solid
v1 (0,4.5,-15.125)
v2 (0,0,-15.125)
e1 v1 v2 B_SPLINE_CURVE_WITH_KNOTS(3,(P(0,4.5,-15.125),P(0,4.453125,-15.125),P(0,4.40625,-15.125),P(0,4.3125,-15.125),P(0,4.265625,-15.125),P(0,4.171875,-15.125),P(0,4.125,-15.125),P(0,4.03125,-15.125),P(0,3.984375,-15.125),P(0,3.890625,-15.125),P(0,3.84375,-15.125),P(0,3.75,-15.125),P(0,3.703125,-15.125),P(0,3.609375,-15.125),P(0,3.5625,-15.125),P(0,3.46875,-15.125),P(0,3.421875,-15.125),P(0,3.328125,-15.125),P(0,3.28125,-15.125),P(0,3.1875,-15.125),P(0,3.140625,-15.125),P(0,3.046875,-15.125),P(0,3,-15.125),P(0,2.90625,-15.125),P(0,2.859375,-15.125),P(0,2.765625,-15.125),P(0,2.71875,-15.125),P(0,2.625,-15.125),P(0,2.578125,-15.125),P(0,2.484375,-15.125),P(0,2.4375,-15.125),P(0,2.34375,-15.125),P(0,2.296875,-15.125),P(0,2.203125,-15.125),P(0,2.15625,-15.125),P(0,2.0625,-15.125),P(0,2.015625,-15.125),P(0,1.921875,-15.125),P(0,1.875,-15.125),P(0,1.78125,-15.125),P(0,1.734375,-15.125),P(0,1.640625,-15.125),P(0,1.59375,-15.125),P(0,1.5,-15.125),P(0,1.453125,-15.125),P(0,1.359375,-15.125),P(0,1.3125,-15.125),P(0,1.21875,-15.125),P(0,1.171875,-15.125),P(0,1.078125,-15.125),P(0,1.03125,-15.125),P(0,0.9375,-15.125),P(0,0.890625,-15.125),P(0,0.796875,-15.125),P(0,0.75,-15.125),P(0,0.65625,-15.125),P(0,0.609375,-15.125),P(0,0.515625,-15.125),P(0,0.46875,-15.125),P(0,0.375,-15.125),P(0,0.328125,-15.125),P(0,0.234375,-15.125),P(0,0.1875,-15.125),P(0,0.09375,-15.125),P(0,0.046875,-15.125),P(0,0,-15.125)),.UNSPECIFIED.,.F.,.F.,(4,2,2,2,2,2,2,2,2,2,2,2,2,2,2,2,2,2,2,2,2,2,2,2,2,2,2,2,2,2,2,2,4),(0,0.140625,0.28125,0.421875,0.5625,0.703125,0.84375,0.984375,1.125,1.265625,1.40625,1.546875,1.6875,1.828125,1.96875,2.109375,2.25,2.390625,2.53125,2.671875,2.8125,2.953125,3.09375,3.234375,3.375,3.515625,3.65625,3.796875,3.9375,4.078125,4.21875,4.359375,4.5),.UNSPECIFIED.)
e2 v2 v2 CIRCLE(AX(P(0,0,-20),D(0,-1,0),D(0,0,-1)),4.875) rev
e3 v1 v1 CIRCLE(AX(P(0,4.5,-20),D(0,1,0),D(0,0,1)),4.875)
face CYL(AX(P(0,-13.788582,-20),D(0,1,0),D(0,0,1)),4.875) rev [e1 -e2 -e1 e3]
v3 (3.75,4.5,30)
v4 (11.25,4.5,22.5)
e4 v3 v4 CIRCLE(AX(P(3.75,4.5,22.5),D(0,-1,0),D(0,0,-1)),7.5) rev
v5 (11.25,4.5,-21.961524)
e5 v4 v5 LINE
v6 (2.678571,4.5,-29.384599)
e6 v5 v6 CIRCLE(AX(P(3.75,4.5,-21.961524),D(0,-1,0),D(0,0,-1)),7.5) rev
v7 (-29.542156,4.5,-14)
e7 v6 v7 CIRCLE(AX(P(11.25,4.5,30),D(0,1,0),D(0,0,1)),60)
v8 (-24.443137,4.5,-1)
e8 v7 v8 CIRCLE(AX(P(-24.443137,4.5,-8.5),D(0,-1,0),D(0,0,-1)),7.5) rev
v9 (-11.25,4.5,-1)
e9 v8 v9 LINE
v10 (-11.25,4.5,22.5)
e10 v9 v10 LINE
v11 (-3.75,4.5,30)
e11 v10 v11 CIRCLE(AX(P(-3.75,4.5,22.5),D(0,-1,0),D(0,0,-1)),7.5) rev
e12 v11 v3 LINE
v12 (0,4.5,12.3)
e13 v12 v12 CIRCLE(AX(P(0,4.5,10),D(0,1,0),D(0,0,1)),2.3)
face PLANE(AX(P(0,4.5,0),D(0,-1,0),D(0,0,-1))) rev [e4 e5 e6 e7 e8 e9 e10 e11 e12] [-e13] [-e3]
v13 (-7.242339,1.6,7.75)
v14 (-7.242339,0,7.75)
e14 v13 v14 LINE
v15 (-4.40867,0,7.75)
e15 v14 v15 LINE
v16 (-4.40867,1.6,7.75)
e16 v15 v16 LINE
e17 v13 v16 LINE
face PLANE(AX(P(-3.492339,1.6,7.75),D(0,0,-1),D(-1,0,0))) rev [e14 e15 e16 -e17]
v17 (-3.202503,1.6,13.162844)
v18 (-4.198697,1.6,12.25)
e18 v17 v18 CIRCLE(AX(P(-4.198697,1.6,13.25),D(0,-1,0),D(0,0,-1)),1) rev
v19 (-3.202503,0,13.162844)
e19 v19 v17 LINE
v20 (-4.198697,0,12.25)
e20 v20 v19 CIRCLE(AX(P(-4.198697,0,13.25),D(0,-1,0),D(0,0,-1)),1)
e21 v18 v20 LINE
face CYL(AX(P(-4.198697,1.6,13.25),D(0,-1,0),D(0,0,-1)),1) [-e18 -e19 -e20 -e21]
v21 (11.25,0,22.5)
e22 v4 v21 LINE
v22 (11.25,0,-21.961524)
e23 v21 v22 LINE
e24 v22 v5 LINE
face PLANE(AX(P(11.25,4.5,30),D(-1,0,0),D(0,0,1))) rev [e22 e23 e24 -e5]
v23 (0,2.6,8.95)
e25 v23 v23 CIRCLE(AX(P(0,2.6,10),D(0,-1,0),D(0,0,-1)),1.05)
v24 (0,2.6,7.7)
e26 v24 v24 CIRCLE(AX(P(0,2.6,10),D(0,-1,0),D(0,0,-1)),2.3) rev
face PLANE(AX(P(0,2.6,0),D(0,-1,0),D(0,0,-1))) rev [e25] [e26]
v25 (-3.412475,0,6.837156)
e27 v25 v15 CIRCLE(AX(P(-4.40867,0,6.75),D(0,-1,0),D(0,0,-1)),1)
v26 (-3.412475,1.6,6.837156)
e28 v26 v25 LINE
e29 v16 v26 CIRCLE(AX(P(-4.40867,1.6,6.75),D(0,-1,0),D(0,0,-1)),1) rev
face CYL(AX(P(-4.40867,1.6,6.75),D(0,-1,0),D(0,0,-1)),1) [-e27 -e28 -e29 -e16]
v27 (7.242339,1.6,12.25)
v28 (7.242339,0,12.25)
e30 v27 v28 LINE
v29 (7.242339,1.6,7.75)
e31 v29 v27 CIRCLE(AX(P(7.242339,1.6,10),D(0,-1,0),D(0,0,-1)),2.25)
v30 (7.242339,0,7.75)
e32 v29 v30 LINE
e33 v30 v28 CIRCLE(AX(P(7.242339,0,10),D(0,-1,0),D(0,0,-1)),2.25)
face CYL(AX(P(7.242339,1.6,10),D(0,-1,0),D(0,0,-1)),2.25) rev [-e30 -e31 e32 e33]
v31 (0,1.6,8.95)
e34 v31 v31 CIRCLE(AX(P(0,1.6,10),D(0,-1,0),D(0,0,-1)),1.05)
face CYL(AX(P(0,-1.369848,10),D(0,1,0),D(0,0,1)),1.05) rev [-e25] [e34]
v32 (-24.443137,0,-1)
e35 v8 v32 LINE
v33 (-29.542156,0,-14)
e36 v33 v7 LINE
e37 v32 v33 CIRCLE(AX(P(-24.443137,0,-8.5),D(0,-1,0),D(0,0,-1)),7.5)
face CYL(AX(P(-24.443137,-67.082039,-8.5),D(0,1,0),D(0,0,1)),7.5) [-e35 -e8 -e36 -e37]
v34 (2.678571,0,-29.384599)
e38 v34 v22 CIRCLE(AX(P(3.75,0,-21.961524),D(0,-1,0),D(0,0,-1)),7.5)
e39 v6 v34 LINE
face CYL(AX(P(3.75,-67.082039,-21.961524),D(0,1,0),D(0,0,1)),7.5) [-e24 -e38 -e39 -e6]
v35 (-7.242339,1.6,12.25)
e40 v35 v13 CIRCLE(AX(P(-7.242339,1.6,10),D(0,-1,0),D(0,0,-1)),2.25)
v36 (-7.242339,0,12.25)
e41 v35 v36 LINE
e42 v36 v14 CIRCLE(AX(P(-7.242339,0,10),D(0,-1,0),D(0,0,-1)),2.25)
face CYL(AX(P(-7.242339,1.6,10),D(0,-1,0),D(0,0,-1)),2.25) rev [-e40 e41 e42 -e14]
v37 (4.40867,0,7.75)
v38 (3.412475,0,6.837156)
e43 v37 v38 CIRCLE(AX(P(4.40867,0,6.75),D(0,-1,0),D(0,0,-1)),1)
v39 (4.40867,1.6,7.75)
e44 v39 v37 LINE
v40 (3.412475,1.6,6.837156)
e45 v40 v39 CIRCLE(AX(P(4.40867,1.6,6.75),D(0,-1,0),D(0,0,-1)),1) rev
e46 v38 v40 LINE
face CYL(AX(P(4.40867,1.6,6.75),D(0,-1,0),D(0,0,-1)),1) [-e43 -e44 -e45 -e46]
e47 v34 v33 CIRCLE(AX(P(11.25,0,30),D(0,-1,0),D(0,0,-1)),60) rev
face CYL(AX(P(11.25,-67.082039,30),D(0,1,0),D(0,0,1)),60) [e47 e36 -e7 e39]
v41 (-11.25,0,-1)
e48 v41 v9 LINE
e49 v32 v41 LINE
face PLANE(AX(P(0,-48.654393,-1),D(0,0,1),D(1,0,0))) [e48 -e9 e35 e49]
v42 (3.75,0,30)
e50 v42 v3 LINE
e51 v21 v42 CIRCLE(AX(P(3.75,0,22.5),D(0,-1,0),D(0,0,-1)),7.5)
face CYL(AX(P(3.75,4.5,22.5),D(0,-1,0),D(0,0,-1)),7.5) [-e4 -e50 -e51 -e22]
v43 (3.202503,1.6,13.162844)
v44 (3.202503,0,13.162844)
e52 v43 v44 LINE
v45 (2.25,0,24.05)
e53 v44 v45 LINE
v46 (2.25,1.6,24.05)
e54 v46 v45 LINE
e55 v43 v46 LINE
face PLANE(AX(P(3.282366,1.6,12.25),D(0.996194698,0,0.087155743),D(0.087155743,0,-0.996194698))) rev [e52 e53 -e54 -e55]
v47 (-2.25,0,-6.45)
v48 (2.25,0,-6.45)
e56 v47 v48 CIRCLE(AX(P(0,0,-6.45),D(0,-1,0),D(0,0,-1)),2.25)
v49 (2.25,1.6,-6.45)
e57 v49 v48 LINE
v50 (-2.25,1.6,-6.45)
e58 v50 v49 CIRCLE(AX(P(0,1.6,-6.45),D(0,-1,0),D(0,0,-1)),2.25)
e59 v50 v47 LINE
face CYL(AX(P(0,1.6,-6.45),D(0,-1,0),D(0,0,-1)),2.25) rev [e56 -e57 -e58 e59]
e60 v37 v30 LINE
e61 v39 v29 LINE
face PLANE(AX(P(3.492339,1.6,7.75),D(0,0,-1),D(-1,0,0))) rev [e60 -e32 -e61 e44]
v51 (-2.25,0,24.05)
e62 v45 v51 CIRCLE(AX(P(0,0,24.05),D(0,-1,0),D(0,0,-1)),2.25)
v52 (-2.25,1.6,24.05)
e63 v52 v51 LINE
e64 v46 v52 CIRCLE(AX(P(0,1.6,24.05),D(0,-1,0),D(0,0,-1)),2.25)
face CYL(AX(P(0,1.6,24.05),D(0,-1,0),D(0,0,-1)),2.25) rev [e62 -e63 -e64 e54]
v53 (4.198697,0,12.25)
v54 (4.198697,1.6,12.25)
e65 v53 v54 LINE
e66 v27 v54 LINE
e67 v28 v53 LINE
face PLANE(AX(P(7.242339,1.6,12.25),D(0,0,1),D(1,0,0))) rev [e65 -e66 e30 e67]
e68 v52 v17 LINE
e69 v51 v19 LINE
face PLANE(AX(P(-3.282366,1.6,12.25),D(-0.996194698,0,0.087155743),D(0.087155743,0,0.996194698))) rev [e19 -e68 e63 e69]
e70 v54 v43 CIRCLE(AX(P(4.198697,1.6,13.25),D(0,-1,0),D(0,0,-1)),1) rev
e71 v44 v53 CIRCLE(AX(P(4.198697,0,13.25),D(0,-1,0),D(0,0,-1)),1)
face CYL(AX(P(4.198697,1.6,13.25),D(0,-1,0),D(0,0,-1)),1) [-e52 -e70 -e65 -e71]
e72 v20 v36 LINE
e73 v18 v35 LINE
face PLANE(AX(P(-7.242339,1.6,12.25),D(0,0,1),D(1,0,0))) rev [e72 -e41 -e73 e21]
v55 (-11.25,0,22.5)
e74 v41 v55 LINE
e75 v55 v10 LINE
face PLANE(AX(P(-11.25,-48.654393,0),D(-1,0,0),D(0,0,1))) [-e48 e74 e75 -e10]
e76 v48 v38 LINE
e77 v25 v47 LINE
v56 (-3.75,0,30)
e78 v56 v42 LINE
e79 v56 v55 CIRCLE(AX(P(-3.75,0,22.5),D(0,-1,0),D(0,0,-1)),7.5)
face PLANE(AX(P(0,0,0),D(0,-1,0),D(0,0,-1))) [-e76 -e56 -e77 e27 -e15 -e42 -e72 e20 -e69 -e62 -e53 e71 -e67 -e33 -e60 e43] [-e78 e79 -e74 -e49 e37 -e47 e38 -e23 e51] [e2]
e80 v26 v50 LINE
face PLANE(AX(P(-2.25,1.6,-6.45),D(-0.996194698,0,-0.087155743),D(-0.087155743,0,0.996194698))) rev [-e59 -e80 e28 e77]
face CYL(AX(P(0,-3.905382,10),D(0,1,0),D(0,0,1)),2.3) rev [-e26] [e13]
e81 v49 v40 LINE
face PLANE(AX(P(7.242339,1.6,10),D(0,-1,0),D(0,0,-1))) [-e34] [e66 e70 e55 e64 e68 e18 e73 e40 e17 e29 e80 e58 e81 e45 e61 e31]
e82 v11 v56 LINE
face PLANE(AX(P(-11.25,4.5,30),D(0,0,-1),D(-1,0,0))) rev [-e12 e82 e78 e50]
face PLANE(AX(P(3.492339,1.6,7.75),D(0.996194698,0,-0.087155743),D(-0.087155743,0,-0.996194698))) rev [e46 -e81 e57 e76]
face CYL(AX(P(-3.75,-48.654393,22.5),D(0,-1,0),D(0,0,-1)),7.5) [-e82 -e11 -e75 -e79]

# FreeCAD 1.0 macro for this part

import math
import FreeCAD as App
import Part
import Sketcher

V = App.Vector
Q = App.Units.Quantity


def edges_at(feature, points):
    """Names of the edges that pass closest to the given points."""
    edges = feature.Shape.Edges
    near = lambda p: min(range(len(edges)), key=lambda i: edges[i].distToShape(Part.Vertex(*p))[0])
    return sorted({f"Edge{near(p) + 1}" for p in points})


def add_polygon(sketch, points):
    """Adds a closed chain of lines whose ends are joined by coincident constraints."""
    first, n = sketch.GeometryCount, len(points)
    for a, b in zip(points, points[1:] + points[:1]):
        sketch.addGeometry(Part.LineSegment(App.Vector(*a, 0), App.Vector(*b, 0)), False)
    for i in range(n):
        sketch.addConstraint(Sketcher.Constraint("Coincident", first + i, 2, first + (i + 1) % n, 1))

doc = App.newDocument("Part")
body = doc.addObject("PartDesign::Body", "Body")

# Sketch on XZ plane
sketch1 = body.newObject("Sketcher::SketchObject", "Sketch")
sketch1.AttachmentSupport = (doc.getObject("XZ_Plane"), [""])
sketch1.MapMode = "FlatFace"
add_polygon(sketch1, [(-11, -30), (-11, 30), (11, 30), (11, -30)])  # lines 0-3
sketch1.addConstraint(Sketcher.Constraint("Vertical", 0))
sketch1.addConstraint(Sketcher.Constraint("Horizontal", 1))
sketch1.addConstraint(Sketcher.Constraint("Vertical", 2))
sketch1.addConstraint(Sketcher.Constraint("Horizontal", 3))
sketch1.addConstraint(Sketcher.Constraint("Symmetric", 0, 2, 2, 2, -1, 1))
sketch1.addConstraint(Sketcher.Constraint("DistanceY", 0, 1, 0, 2, Q("60 mm")))
sketch1.addConstraint(Sketcher.Constraint("DistanceX", 1, 1, 1, 2, Q("22.5 mm")))
pad1 = body.newObject("PartDesign::Pad", "Pad")
pad1.Profile = sketch1
pad1.Length = 4.5
pad1.Reversed = True

# Sketch on XZ plane
sketch2 = body.newObject("Sketcher::SketchObject", "Sketch001")
sketch2.AttachmentSupport = (doc.getObject("XZ_Plane"), [""])
sketch2.MapMode = "FlatFace"
sketch2.addGeometry(Part.LineSegment(V(2.2, -6.5, 0), V(3.5, 7.8, 0)), False)
sketch2.addGeometry(Part.LineSegment(V(3.5, 7.8, 0), V(7.2, 7.8, 0)), False)
sketch2.addGeometry(Part.ArcOfCircle(Part.Circle(V(7.2, 10, 0), V(0, 0, 1), 2.2), math.radians(-90), math.radians(90)), False)
sketch2.addGeometry(Part.LineSegment(V(7.2, 12.2, 0), V(3.3, 12.2, 0)), False)
sketch2.addGeometry(Part.LineSegment(V(3.3, 12.2, 0), V(2.2, 24.1, 0)), False)
sketch2.addGeometry(Part.ArcOfCircle(Part.Circle(V(0, 24.1, 0), V(0, 0, 1), 2.2), math.radians(0), math.radians(180)), False)
sketch2.addGeometry(Part.LineSegment(V(-2.2, 24.1, 0), V(-3.3, 12.2, 0)), False)
sketch2.addGeometry(Part.LineSegment(V(-3.3, 12.2, 0), V(-7.2, 12.2, 0)), False)
sketch2.addGeometry(Part.ArcOfCircle(Part.Circle(V(-7.2, 10, 0), V(0, 0, 1), 2.2), math.radians(90), math.radians(270)), False)
sketch2.addGeometry(Part.LineSegment(V(-7.2, 7.8, 0), V(-3.5, 7.8, 0)), False)
sketch2.addGeometry(Part.LineSegment(V(-3.5, 7.8, 0), V(-2.2, -6.5, 0)), False)
sketch2.addGeometry(Part.ArcOfCircle(Part.Circle(V(0, -6.5, 0), V(0, 0, 1), 2.2), math.radians(180), math.radians(360)), False)
sketch2.addConstraint(Sketcher.Constraint("Coincident", 0, 2, 1, 1))
sketch2.addConstraint(Sketcher.Constraint("Tangent", 1, 2, 2, 1))
sketch2.addConstraint(Sketcher.Constraint("Tangent", 2, 2, 3, 1))
sketch2.addConstraint(Sketcher.Constraint("Coincident", 3, 2, 4, 1))
sketch2.addConstraint(Sketcher.Constraint("Coincident", 4, 2, 5, 1))
sketch2.addConstraint(Sketcher.Constraint("Coincident", 5, 2, 6, 1))
sketch2.addConstraint(Sketcher.Constraint("Coincident", 6, 2, 7, 1))
sketch2.addConstraint(Sketcher.Constraint("Tangent", 7, 2, 8, 1))
sketch2.addConstraint(Sketcher.Constraint("Tangent", 8, 2, 9, 1))
sketch2.addConstraint(Sketcher.Constraint("Coincident", 9, 2, 10, 1))
sketch2.addConstraint(Sketcher.Constraint("Coincident", 10, 2, 11, 1))
sketch2.addConstraint(Sketcher.Constraint("Coincident", 11, 2, 0, 1))
sketch2.addConstraint(Sketcher.Constraint("Horizontal", 1))
sketch2.addConstraint(Sketcher.Constraint("Horizontal", 3))
sketch2.addConstraint(Sketcher.Constraint("Horizontal", 7))
sketch2.addConstraint(Sketcher.Constraint("Horizontal", 9))
sketch2.addConstraint(Sketcher.Constraint("Equal", 2, 5))
sketch2.addConstraint(Sketcher.Constraint("Equal", 5, 8))
sketch2.addConstraint(Sketcher.Constraint("Equal", 8, 11))
sketch2.addConstraint(Sketcher.Constraint("Symmetric", 2, 3, 8, 3, -2))
sketch2.addConstraint(Sketcher.Constraint("Symmetric", 4, 2, 5, 2, -2))
sketch2.addConstraint(Sketcher.Constraint("Symmetric", 10, 2, 11, 2, -2))
sketch2.addConstraint(Sketcher.Constraint("Parallel", 0, 6))
sketch2.addConstraint(Sketcher.Constraint("Parallel", 4, 10))
sketch2.addConstraint(Sketcher.Constraint("Horizontal", 5, 3, 4, 2))
sketch2.addConstraint(Sketcher.Constraint("Horizontal", 11, 3, 10, 2))
sketch2.addConstraint(Sketcher.Constraint("Equal", 3, 7))
sketch2.addConstraint(Sketcher.Constraint("Angle", 0, Q("85 deg")))
sketch2.addConstraint(Sketcher.Constraint("Radius", 2, Q("2.25 mm")))
sketch2.addConstraint(Sketcher.Constraint("DistanceY", -1, 1, 2, 3, Q("10 mm")))
sketch2.addConstraint(Sketcher.Constraint("DistanceX", 1, 1, 1, 2, Q("3.75 mm")))
sketch2.addConstraint(Sketcher.Constraint("DistanceY", 11, 3, 5, 3, Q("30.5 mm")))
sketch2.addConstraint(Sketcher.Constraint("DistanceY", 11, 3, 0, 2, Q("14.2 mm")))
pocket1 = body.newObject("PartDesign::Pocket", "Pocket")
pocket1.Profile = sketch2
pocket1.Length = 1.6
doc.recompute()

fillet = body.newObject("PartDesign::Fillet", "Fillet")
fillet.Base = (pocket1, edges_at(pocket1, [
    (3.492, 0.8, 7.75),
    (-3.492, 0.8, 7.75),
    (-3.282, 0.8, 12.25),
    (3.282, 0.8, 12.25),
]))
fillet.Radius = 1

# Sketch on XZ plane
sketch3 = body.newObject("Sketcher::SketchObject", "Sketch002")
sketch3.AttachmentSupport = (doc.getObject("XZ_Plane"), [""])
sketch3.MapMode = "FlatFace"
sketch3.AttachmentOffset = App.Placement(V(0, 0, -2.6), App.Rotation())
sketch3.addGeometry(Part.Circle(V(0, 10, 0), V(0, 0, 1), 2.3), False)
sketch3.addConstraint(Sketcher.Constraint("PointOnObject", 0, 3, -2))
sketch3.addConstraint(Sketcher.Constraint("Diameter", 0, Q("4.6 mm")))
sketch3.addConstraint(Sketcher.Constraint("DistanceY", -1, 1, 0, 3, Q("10 mm")))
pocket2 = body.newObject("PartDesign::Pocket", "Pocket001")
pocket2.Profile = sketch3
pocket2.Length = 1.9

# Sketch on XZ plane
sketch4 = body.newObject("Sketcher::SketchObject", "Sketch003")
sketch4.AttachmentSupport = (doc.getObject("XZ_Plane"), [""])
sketch4.MapMode = "FlatFace"
sketch4.AttachmentOffset = App.Placement(V(0, 0, -2.6), App.Rotation())
sketch4.addGeometry(Part.Circle(V(0, 10, 0), V(0, 0, 1), 1.1), False)
sketch4.addConstraint(Sketcher.Constraint("PointOnObject", 0, 3, -2))
sketch4.addConstraint(Sketcher.Constraint("Diameter", 0, Q("2.1 mm")))
sketch4.addConstraint(Sketcher.Constraint("DistanceY", -1, 1, 0, 3, Q("10 mm")))
pocket3 = body.newObject("PartDesign::Pocket", "Pocket002")
pocket3.Profile = sketch4
pocket3.Length = 1
pocket3.Reversed = True

# Sketch on XZ plane
sketch5 = body.newObject("Sketcher::SketchObject", "Sketch004")
sketch5.AttachmentSupport = (doc.getObject("XZ_Plane"), [""])
sketch5.MapMode = "FlatFace"
sketch5.AttachmentOffset = App.Placement(V(0, 0, -4.5), App.Rotation())
sketch5.addGeometry(Part.LineSegment(V(-49, 30, 0), V(-11, 30, 0)), False)
sketch5.addGeometry(Part.LineSegment(V(-11, 30, 0), V(-11, -26, 0)), False)
sketch5.addGeometry(Part.ArcOfCircle(Part.Circle(V(11, 30, 0), V(0, 0, 1), 60), math.radians(-180), math.radians(-112)), False)
sketch5.addConstraint(Sketcher.Constraint("Coincident", 0, 2, 1, 1))
sketch5.addConstraint(Sketcher.Constraint("Coincident", 1, 2, 2, 2))
sketch5.addConstraint(Sketcher.Constraint("Coincident", 2, 1, 0, 1))
sketch5.addConstraint(Sketcher.Constraint("Horizontal", 0))
sketch5.addConstraint(Sketcher.Constraint("Vertical", 1))
sketch5.addConstraint(Sketcher.Constraint("Horizontal", 2, 3, 0, 2))
sketch5.addConstraint(Sketcher.Constraint("Radius", 2, Q("60 mm")))
sketch5.addConstraint(Sketcher.Constraint("DistanceX", 0, 1, 0, 2, Q("37.5 mm")))
sketch5.addConstraint(Sketcher.Constraint("DistanceY", -1, 1, 2, 3, Q("30 mm")))
sketch5.addConstraint(Sketcher.Constraint("DistanceX", -1, 1, 2, 3, Q("11.25 mm")))
pad2 = body.newObject("PartDesign::Pad", "Pad001")
pad2.Profile = sketch5
pad2.Length = 4.5

# Sketch on XZ plane
sketch6 = body.newObject("Sketcher::SketchObject", "Sketch005")
sketch6.AttachmentSupport = (doc.getObject("XZ_Plane"), [""])
sketch6.MapMode = "FlatFace"
sketch6.AttachmentOffset = App.Placement(V(0, 0, -4.5), App.Rotation())
sketch6.addGeometry(Part.ArcOfCircle(Part.Circle(V(11.2, 30, 0), V(0, 0, 1), 60), math.radians(-112), math.radians(-90)), False)
sketch6.addGeometry(Part.LineSegment(V(11.2, -30, 0), V(-11.2, -30, 0)), False)
sketch6.addGeometry(Part.LineSegment(V(-11.2, -30, 0), V(-11.2, -25.6, 0)), False)
sketch6.addConstraint(Sketcher.Constraint("Tangent", 0, 2, 1, 1))
sketch6.addConstraint(Sketcher.Constraint("Coincident", 1, 2, 2, 1))
sketch6.addConstraint(Sketcher.Constraint("Coincident", 2, 2, 0, 1))
sketch6.addConstraint(Sketcher.Constraint("Horizontal", 1))
sketch6.addConstraint(Sketcher.Constraint("Vertical", 2))
sketch6.addConstraint(Sketcher.Constraint("Radius", 0, Q("60 mm")))
sketch6.addConstraint(Sketcher.Constraint("DistanceX", 1, 2, 1, 1, Q("22.5 mm")))
sketch6.addConstraint(Sketcher.Constraint("DistanceY", -1, 1, 0, 3, Q("30 mm")))
sketch6.addConstraint(Sketcher.Constraint("DistanceX", -1, 1, 0, 3, Q("11.25 mm")))
pocket4 = body.newObject("PartDesign::Pocket", "Pocket003")
pocket4.Profile = sketch6
pocket4.Length = 4.5
pocket4.Reversed = True

# Sketch on XZ plane
sketch7 = body.newObject("Sketcher::SketchObject", "Sketch006")
sketch7.AttachmentSupport = (doc.getObject("XZ_Plane"), [""])
sketch7.MapMode = "FlatFace"
sketch7.AttachmentOffset = App.Placement(V(0, 0, -4.5), App.Rotation())
sketch7.addGeometry(Part.Circle(V(0, -20, 0), V(0, 0, 1), 4.9), False)
sketch7.addConstraint(Sketcher.Constraint("PointOnObject", 0, 3, -2))
sketch7.addConstraint(Sketcher.Constraint("Diameter", 0, Q("9.75 mm")))
sketch7.addConstraint(Sketcher.Constraint("DistanceY", 0, 3, -1, 1, Q("20 mm")))
pocket5 = body.newObject("PartDesign::Pocket", "Pocket004")
pocket5.Profile = sketch7
pocket5.Length = 4.5
pocket5.Reversed = True

# Sketch on XZ plane
sketch8 = body.newObject("Sketcher::SketchObject", "Sketch007")
sketch8.AttachmentSupport = (doc.getObject("XZ_Plane"), [""])
sketch8.MapMode = "FlatFace"
sketch8.AttachmentOffset = App.Placement(V(0, 0, -4.5), App.Rotation())
sketch8.addGeometry(Part.LineSegment(V(-11, -1, 0), V(-40, -1, 0)), False)
sketch8.addGeometry(Part.ArcOfCircle(Part.Circle(V(11, 30, 0), V(0, 0, 1), 60), math.radians(-180), math.radians(-149)), False)
sketch8.addGeometry(Part.LineSegment(V(-49, 30, 0), V(-11, 30, 0)), False)
sketch8.addGeometry(Part.LineSegment(V(-11, 30, 0), V(-11, -1, 0)), False)
sketch8.addConstraint(Sketcher.Constraint("Coincident", 0, 2, 1, 2))
sketch8.addConstraint(Sketcher.Constraint("Coincident", 1, 1, 2, 1))
sketch8.addConstraint(Sketcher.Constraint("Coincident", 2, 2, 3, 1))
sketch8.addConstraint(Sketcher.Constraint("Coincident", 3, 2, 0, 1))
sketch8.addConstraint(Sketcher.Constraint("Horizontal", 0))
sketch8.addConstraint(Sketcher.Constraint("Horizontal", 2))
sketch8.addConstraint(Sketcher.Constraint("Vertical", 3))
sketch8.addConstraint(Sketcher.Constraint("Radius", 1, Q("60 mm")))
sketch8.addConstraint(Sketcher.Constraint("DistanceY", 3, 2, 3, 1, Q("31 mm")))
sketch8.addConstraint(Sketcher.Constraint("DistanceX", 2, 1, 2, 2, Q("37.5 mm")))
sketch8.addConstraint(Sketcher.Constraint("DistanceY", -1, 1, 1, 3, Q("30 mm")))
sketch8.addConstraint(Sketcher.Constraint("DistanceY", 0, 2, -1, 1, Q("1 mm")))
sketch8.addConstraint(Sketcher.Constraint("DistanceX", -1, 1, 1, 3, Q("11.25 mm")))
pocket6 = body.newObject("PartDesign::Pocket", "Pocket005")
pocket6.Profile = sketch8
pocket6.Length = 4.5
pocket6.Reversed = True
doc.recompute()

fillet2 = body.newObject("PartDesign::Fillet", "Fillet001")
fillet2.Base = (pocket6, edges_at(pocket6, [(-40.121, 2.25, -1)]))
fillet2.Radius = 7.5
doc.recompute()

fillet3 = body.newObject("PartDesign::Fillet", "Fillet002")
fillet3.Base = (fillet2, edges_at(fillet2, [(-11.25, 2.25, 30), (11.25, 2.25, 30), (11.25, 2.25, -30)]))
fillet3.Radius = 7.5

doc.recompute()
